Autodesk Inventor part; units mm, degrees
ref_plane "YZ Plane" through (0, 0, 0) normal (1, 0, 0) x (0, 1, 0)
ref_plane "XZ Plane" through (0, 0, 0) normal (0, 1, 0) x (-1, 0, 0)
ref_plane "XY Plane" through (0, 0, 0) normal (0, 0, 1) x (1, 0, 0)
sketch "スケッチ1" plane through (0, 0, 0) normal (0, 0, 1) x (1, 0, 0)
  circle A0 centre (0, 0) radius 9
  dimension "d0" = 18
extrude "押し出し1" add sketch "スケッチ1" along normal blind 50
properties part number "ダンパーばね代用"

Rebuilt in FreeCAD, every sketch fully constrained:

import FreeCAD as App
import Part
import Sketcher
from FreeCAD import Vector

doc = App.newDocument("Part")
body = doc.addObject("PartDesign::Body", "Body")

sketch1 = doc.addObject("Sketcher::SketchObject", "Sketch")
body.addObject(sketch1)
sketch1.AttachmentSupport = (doc.XY_Plane, [""])
sketch1.MapMode = "FlatFace"
sketch1.addGeometry(Part.Circle(Vector(0, 0, 0), Vector(0, 0, 1), 9), False)
sketch1.addConstraint([
    Sketcher.Constraint("Coincident", 0, 3, -1, 1),
    Sketcher.Constraint("Diameter", 0, 18.0),
])
pad1 = doc.addObject("PartDesign::Pad", "Pad")
body.addObject(pad1)
pad1.Profile = sketch1
pad1.Length = 50

doc.recompute()
